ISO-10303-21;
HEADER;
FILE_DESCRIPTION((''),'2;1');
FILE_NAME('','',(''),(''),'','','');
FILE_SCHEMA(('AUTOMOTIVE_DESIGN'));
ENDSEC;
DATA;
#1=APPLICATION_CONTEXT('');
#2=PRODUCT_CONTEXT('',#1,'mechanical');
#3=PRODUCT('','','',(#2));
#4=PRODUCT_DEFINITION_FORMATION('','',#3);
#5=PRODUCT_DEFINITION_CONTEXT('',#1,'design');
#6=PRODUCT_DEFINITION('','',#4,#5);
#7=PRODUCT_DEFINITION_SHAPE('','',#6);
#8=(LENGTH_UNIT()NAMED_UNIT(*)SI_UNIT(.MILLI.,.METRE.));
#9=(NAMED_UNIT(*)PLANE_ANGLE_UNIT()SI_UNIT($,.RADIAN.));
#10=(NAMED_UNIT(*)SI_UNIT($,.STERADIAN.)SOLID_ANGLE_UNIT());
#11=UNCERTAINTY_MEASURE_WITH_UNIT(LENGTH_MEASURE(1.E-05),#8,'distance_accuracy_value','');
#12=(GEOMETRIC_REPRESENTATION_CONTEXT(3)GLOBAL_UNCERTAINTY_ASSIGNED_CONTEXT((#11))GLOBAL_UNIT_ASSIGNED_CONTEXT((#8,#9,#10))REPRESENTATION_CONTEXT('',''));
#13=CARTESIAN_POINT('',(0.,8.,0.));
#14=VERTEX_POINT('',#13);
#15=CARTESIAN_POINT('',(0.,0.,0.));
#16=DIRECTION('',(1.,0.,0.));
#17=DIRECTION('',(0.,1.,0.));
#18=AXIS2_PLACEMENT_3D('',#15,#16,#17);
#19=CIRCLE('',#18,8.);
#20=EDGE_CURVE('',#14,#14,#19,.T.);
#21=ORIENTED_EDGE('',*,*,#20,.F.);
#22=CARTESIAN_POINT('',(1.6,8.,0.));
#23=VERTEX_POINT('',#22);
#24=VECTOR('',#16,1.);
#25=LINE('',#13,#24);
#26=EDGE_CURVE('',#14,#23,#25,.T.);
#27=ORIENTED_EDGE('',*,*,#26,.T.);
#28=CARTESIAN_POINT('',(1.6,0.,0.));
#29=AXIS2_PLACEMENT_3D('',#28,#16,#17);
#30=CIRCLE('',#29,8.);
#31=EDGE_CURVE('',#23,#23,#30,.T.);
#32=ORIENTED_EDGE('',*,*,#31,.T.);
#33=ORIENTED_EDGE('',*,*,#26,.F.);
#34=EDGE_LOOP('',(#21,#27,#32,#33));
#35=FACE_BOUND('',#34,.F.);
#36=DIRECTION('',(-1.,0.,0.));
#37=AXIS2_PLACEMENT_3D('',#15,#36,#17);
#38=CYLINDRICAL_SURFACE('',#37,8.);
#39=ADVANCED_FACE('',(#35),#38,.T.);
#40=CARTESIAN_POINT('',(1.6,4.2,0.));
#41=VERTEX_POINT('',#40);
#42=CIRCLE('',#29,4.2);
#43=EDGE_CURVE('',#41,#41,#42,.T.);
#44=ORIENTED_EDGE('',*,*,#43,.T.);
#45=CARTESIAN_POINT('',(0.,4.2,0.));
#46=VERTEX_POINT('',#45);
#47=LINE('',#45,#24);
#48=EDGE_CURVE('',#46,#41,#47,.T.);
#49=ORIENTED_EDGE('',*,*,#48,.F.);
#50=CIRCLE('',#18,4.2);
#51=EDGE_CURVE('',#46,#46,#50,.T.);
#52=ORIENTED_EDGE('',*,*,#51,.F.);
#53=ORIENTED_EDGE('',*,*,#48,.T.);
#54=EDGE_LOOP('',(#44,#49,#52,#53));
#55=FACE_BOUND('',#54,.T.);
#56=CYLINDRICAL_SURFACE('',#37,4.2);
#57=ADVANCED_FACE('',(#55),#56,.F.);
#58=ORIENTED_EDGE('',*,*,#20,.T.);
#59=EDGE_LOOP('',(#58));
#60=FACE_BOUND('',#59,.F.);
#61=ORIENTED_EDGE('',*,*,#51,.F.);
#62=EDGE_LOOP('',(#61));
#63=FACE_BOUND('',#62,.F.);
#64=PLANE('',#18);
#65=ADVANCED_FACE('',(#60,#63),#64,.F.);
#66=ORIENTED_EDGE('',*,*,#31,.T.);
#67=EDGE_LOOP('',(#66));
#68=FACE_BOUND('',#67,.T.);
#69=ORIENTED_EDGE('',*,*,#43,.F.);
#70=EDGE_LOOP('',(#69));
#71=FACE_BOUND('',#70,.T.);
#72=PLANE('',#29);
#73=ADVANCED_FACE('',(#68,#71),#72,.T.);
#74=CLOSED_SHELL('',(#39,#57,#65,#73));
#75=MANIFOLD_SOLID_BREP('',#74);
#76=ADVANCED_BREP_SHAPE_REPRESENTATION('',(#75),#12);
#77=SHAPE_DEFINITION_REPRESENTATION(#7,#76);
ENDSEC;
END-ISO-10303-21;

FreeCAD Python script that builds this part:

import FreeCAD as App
import Part
import Sketcher
from FreeCAD import Vector

doc = App.newDocument("Part")
body = doc.addObject("PartDesign::Body", "Body")

sketch1 = body.newObject("Sketcher::SketchObject", "Sketch")
sketch1.AttachmentSupport = (doc.getObject("YZ_Plane"), [""])
sketch1.MapMode = "FlatFace"
sketch1.addGeometry([
    Part.Circle(Vector(0, 0, 0), Vector(0, 0, 1), 8),
    Part.Circle(Vector(0, 0, 0), Vector(0, 0, 1), 4.2),
], False)
sketch1.addConstraint([
    Sketcher.Constraint("Coincident", 0, 3, -1, 1),
    Sketcher.Constraint("Coincident", 1, 3, -1, 1),
    Sketcher.Constraint("Diameter", 0, 16.0),
    Sketcher.Constraint("Diameter", 1, 8.4),
])
pad1 = body.newObject("PartDesign::Pad", "Pad")
pad1.Profile = sketch1
pad1.Length = 1.6

doc.recompute()
